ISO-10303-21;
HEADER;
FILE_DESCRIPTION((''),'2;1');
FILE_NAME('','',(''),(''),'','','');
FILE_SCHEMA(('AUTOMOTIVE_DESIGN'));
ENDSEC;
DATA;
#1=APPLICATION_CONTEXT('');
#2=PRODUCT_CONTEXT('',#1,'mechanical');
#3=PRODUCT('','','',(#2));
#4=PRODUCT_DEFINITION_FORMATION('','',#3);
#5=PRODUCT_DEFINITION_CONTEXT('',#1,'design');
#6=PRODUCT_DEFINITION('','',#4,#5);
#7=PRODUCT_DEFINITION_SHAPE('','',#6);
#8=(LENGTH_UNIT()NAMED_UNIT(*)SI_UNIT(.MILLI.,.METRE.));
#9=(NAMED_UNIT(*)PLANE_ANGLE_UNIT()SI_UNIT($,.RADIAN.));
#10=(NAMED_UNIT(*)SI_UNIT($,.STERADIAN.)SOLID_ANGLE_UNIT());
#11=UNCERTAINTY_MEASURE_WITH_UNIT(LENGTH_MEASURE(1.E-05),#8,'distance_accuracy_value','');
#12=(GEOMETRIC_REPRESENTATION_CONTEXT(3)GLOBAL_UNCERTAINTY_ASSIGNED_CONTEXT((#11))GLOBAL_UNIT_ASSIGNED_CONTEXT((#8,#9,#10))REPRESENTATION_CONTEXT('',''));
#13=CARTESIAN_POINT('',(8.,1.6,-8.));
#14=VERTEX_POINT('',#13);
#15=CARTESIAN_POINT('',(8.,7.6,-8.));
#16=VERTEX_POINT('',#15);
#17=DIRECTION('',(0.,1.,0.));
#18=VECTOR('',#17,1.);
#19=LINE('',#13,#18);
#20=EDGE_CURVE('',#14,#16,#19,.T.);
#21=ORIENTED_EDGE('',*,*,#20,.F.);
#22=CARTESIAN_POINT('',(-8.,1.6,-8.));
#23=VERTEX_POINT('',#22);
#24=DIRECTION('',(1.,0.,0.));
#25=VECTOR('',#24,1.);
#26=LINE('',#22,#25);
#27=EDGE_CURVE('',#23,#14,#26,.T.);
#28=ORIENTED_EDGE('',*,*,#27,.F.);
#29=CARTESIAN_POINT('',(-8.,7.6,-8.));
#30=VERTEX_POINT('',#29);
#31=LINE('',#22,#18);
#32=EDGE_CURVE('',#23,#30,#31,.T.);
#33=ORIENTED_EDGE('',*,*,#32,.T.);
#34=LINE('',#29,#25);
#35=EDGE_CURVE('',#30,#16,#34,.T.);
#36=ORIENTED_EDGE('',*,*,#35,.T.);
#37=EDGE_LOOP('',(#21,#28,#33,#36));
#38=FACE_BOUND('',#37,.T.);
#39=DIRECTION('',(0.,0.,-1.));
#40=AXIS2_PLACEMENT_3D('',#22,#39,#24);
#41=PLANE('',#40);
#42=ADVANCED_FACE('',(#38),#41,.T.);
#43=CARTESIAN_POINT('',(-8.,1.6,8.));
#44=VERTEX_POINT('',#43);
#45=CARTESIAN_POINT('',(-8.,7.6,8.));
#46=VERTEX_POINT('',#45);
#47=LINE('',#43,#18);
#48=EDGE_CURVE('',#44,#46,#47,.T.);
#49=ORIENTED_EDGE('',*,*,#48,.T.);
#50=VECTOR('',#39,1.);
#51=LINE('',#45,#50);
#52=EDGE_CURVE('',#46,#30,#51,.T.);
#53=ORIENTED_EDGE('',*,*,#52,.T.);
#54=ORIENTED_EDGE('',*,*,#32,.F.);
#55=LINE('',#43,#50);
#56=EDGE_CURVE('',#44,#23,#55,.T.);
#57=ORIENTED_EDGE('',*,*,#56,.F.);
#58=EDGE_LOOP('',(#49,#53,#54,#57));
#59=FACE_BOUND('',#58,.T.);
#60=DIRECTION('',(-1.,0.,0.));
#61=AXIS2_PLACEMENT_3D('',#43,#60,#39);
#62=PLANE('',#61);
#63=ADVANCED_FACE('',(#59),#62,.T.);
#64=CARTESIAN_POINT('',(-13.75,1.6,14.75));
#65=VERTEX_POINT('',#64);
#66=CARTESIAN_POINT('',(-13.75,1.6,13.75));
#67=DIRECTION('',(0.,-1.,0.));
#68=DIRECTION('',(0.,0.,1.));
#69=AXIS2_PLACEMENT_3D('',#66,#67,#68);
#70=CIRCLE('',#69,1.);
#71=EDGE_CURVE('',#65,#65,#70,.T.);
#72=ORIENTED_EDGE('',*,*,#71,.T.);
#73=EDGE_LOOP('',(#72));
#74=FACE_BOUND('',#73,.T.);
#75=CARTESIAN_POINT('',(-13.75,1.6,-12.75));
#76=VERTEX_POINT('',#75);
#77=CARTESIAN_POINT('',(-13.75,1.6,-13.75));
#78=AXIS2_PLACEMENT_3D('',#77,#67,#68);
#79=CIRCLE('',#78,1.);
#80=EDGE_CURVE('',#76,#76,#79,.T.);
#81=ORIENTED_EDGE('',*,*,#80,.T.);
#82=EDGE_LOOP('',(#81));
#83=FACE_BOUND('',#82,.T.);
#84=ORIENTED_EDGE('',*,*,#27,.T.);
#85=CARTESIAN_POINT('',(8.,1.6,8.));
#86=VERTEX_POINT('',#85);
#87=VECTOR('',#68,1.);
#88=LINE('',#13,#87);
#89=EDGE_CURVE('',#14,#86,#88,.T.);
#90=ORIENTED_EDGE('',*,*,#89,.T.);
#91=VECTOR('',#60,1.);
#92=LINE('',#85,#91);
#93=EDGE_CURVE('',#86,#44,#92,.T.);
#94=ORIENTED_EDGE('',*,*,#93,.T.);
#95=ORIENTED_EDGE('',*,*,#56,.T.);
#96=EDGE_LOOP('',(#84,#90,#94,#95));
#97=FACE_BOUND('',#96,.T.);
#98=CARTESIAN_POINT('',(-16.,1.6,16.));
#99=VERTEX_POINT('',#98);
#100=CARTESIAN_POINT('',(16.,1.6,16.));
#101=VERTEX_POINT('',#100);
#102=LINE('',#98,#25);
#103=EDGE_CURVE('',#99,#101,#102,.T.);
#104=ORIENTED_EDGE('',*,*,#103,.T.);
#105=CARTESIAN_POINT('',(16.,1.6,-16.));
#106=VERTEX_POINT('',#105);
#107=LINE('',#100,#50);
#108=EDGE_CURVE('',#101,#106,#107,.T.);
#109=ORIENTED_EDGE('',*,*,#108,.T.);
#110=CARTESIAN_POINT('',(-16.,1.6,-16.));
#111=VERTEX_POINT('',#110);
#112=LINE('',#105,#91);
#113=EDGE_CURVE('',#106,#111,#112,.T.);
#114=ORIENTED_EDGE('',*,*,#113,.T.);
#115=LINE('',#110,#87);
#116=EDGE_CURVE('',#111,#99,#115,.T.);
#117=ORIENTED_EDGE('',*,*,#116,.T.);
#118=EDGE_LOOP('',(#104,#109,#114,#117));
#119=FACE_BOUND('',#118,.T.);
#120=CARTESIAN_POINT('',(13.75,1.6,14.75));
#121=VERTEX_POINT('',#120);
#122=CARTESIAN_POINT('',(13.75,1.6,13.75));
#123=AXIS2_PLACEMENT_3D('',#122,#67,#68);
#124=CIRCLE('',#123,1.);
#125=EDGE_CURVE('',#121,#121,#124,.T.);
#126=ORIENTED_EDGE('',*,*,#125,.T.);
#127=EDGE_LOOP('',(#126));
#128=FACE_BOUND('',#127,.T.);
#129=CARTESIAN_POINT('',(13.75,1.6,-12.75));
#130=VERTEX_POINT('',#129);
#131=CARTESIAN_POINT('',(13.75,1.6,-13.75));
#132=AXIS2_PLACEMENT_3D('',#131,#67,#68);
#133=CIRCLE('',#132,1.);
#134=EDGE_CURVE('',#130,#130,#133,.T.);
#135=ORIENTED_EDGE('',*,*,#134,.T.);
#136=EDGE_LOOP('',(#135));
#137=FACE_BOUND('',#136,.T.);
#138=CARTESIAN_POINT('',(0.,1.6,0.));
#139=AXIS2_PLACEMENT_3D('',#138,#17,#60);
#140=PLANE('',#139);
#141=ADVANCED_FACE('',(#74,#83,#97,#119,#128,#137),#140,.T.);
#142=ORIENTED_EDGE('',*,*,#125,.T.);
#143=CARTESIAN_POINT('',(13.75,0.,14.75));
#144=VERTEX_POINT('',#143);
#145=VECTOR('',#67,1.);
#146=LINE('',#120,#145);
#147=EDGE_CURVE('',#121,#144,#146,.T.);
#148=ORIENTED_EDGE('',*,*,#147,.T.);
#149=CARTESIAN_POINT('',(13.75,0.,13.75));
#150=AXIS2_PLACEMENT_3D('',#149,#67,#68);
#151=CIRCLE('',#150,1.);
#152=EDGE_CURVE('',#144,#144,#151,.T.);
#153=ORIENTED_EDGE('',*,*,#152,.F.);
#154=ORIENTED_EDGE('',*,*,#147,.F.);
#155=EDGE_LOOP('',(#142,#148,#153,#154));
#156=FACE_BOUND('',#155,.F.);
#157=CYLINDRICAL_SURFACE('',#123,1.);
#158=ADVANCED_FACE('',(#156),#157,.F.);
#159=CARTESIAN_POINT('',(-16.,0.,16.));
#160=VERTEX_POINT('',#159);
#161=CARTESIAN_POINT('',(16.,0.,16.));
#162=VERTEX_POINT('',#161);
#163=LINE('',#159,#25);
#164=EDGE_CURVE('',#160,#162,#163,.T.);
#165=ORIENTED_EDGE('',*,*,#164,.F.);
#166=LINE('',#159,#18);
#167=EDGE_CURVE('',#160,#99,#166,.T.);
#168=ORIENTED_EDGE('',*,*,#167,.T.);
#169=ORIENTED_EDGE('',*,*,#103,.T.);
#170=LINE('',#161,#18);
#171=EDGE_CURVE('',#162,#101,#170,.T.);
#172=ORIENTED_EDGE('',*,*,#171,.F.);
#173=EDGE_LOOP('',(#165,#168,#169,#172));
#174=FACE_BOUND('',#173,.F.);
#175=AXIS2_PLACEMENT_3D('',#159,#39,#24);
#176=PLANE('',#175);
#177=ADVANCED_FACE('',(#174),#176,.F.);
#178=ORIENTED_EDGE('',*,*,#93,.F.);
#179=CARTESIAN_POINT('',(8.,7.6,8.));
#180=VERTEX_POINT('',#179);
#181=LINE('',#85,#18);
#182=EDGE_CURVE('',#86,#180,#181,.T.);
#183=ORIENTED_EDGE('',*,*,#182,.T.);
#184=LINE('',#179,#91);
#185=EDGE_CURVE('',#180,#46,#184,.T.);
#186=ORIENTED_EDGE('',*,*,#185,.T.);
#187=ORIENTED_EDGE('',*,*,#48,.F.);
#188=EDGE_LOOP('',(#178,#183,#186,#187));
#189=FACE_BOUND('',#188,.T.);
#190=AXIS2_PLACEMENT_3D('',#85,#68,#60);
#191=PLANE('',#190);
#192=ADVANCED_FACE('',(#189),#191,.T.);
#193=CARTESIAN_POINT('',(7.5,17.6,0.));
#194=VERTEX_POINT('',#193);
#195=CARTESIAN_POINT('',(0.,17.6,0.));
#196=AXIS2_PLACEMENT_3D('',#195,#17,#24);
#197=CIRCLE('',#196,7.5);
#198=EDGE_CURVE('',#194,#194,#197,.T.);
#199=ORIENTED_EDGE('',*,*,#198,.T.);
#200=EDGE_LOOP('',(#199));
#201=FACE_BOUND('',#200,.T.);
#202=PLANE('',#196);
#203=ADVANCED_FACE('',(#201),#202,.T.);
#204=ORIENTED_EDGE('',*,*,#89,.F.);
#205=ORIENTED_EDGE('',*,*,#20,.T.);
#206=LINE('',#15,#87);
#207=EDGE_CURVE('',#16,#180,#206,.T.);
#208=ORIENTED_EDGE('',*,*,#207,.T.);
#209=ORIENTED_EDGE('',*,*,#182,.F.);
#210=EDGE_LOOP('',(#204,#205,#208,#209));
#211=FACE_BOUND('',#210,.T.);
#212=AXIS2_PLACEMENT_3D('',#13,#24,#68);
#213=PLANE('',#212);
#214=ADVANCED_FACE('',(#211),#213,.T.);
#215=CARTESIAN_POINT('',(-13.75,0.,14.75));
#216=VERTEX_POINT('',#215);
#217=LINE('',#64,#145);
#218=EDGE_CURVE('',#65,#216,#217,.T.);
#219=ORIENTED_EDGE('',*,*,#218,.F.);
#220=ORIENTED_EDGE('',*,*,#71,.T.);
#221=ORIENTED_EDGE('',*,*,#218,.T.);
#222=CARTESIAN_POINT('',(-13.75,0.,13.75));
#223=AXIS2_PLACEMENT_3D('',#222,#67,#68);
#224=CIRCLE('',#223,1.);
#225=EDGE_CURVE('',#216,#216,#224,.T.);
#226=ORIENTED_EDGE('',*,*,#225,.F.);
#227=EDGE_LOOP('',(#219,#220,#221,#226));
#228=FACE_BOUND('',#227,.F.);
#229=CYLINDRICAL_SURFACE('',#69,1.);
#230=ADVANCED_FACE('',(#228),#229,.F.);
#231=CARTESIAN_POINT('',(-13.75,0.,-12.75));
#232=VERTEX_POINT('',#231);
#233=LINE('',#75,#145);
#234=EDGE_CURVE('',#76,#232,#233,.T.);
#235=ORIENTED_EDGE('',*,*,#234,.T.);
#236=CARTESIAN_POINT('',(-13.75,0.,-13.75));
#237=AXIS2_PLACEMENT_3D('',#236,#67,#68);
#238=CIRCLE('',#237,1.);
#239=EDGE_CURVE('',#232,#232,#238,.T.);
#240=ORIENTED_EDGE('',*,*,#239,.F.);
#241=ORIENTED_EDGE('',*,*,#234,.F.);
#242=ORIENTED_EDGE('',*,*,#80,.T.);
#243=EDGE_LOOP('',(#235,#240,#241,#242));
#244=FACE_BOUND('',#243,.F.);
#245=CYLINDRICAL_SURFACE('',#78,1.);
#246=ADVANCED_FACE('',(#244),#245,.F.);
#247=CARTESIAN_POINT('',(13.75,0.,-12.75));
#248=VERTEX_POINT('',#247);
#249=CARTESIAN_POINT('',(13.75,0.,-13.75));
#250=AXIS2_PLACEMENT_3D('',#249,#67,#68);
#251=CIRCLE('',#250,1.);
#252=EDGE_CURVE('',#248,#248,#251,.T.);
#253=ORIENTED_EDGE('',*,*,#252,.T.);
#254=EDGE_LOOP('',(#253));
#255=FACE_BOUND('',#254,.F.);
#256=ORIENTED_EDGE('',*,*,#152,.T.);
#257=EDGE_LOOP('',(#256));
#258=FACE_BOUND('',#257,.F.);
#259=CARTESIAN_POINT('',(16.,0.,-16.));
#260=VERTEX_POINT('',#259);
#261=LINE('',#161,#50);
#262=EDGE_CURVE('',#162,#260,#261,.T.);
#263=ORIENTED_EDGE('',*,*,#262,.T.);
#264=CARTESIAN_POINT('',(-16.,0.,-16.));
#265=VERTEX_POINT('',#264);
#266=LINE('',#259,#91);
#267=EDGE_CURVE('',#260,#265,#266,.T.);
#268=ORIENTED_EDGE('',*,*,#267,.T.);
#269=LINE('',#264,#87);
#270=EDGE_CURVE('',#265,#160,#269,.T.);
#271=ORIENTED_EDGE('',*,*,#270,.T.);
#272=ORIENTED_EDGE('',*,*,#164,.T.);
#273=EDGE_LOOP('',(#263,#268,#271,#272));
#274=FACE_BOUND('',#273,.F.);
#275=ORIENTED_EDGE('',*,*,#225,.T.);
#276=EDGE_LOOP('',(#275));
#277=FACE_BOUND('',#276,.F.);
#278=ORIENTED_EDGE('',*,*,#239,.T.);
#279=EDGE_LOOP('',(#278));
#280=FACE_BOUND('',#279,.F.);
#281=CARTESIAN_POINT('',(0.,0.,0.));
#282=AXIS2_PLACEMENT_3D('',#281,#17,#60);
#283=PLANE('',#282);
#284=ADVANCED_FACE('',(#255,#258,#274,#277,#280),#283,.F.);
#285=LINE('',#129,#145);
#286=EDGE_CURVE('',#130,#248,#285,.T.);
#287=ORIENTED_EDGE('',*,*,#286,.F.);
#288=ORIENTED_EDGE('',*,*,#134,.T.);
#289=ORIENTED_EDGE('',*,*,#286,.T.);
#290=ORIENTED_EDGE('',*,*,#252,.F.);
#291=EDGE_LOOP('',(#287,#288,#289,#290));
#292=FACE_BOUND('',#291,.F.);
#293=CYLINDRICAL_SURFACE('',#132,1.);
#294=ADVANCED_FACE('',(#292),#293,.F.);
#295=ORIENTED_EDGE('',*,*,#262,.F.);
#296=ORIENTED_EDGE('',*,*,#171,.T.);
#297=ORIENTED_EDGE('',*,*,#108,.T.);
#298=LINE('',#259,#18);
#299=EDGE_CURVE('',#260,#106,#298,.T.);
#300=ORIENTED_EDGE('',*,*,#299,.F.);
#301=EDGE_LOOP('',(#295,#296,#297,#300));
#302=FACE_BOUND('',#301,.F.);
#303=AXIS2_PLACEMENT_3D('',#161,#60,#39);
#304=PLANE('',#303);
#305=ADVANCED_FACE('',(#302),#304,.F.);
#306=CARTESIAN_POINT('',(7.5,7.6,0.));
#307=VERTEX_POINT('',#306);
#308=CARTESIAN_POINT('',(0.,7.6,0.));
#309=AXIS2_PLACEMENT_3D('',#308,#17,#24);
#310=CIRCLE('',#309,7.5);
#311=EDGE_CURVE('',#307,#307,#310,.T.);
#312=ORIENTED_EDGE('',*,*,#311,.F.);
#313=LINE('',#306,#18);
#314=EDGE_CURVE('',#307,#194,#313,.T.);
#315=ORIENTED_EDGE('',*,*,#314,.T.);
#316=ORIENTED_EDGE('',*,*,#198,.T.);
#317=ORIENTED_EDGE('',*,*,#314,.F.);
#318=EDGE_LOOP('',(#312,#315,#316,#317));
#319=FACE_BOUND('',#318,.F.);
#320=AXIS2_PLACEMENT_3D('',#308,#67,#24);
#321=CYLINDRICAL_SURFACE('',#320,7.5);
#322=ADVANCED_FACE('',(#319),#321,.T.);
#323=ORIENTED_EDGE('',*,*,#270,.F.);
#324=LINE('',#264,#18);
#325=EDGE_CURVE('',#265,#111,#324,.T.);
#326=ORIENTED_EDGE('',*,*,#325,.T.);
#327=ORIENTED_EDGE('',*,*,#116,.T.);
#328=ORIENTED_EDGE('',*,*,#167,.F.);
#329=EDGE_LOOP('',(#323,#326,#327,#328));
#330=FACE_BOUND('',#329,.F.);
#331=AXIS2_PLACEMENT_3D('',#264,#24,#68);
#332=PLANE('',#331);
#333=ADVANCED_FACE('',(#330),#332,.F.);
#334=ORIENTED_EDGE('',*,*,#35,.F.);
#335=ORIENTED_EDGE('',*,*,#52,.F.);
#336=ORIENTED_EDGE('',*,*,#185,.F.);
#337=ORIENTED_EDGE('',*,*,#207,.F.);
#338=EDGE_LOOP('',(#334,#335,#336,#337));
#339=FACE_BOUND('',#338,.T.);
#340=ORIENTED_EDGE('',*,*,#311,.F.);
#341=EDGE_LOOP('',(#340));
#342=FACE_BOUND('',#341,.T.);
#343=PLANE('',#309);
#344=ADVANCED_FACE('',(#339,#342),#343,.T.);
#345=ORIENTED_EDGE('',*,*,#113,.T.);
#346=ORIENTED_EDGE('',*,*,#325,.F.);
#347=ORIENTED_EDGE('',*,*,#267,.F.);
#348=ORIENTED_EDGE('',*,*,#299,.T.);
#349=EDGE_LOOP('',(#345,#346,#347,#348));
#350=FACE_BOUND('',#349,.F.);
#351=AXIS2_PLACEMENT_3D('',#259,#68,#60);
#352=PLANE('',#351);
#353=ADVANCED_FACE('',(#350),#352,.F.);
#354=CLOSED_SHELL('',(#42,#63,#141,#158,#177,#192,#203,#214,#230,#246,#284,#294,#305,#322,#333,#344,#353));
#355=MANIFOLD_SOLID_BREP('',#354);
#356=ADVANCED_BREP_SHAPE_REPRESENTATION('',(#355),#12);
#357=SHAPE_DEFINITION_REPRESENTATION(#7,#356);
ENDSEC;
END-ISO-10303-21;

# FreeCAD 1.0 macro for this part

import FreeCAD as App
import Part
import Sketcher

V = App.Vector
Q = App.Units.Quantity


def add_polygon(sketch, points):
    """Adds a closed chain of lines whose ends are joined by coincident constraints."""
    first, n = sketch.GeometryCount, len(points)
    for a, b in zip(points, points[1:] + points[:1]):
        sketch.addGeometry(Part.LineSegment(App.Vector(*a, 0), App.Vector(*b, 0)), False)
    for i in range(n):
        sketch.addConstraint(Sketcher.Constraint("Coincident", first + i, 2, first + (i + 1) % n, 1))

doc = App.newDocument("Part")
body = doc.addObject("PartDesign::Body", "Body")

# Sketch on XZ plane
sketch1 = doc.addObject("Sketcher::SketchObject", "Sketch")
body.addObject(sketch1)
sketch1.AttachmentSupport = (doc.XZ_Plane, [""])
sketch1.MapMode = "FlatFace"
add_polygon(sketch1, [(-16, 16), (16, 16), (16, -16), (-16, -16)])  # lines 0-3
sketch1.addConstraint([
    Sketcher.Constraint("Horizontal", 0),
    Sketcher.Constraint("Vertical", 1),
    Sketcher.Constraint("Horizontal", 2),
    Sketcher.Constraint("Vertical", 3),
    Sketcher.Constraint("Symmetric", 0, 2, 2, 2, -1, 1),
    Sketcher.Constraint("Equal", 2, 1),
    Sketcher.Constraint("DistanceX", 0, 1, 0, 2, Q("32 mm")),
])
pad1 = doc.addObject("PartDesign::Pad", "Pad")
body.addObject(pad1)
pad1.Profile = sketch1
pad1.Length = 1.6
pad1.Reversed = True

# Sketch on XZ plane
sketch2 = doc.addObject("Sketcher::SketchObject", "Sketch001")
body.addObject(sketch2)
sketch2.AttachmentSupport = (doc.XZ_Plane, [""])
sketch2.MapMode = "FlatFace"
sketch2.AttachmentOffset = App.Placement(V(0, 0, -1.6), App.Rotation())
add_polygon(sketch2, [(-8, -8), (-8, 8), (8, 8), (8, -8)])  # lines 0-3
sketch2.addConstraint([
    Sketcher.Constraint("Vertical", 0),
    Sketcher.Constraint("Horizontal", 1),
    Sketcher.Constraint("Vertical", 2),
    Sketcher.Constraint("Horizontal", 3),
    Sketcher.Constraint("Symmetric", 0, 2, 2, 2, -1, 1),
    Sketcher.Constraint("Equal", 3, 0),
    Sketcher.Constraint("DistanceX", 1, 1, 1, 2, Q("16 mm")),
])
pad2 = doc.addObject("PartDesign::Pad", "Pad001")
body.addObject(pad2)
pad2.Profile = sketch2
pad2.Length = 6
pad2.Reversed = True

# Sketch on XZ plane
sketch3 = doc.addObject("Sketcher::SketchObject", "Sketch002")
body.addObject(sketch3)
sketch3.AttachmentSupport = (doc.XZ_Plane, [""])
sketch3.MapMode = "FlatFace"
sketch3.AttachmentOffset = App.Placement(V(0, 0, -7.6), App.Rotation())
sketch3.addGeometry(Part.Circle(V(0, 0, 0), V(0, 0, 1), 8), False)
sketch3.addConstraint([
    Sketcher.Constraint("Coincident", 0, 3, -1, 1),
    Sketcher.Constraint("Diameter", 0, Q("15 mm")),
])
pad3 = doc.addObject("PartDesign::Pad", "Pad002")
body.addObject(pad3)
pad3.Profile = sketch3
pad3.Length = 10
pad3.Reversed = True

# Sketch on XZ plane
sketch4 = doc.addObject("Sketcher::SketchObject", "Sketch003")
body.addObject(sketch4)
sketch4.AttachmentSupport = (doc.XZ_Plane, [""])
sketch4.MapMode = "FlatFace"
sketch4.AttachmentOffset = App.Placement(V(0, 0, -1.6), App.Rotation())
sketch4.addGeometry([
    Part.Circle(V(-13.8, 13.8, 0), V(0, 0, 1), 1),
    Part.Circle(V(13.8, 13.8, 0), V(0, 0, 1), 1),
    Part.Circle(V(13.8, -13.8, 0), V(0, 0, 1), 1),
    Part.Circle(V(-13.8, -13.8, 0), V(0, 0, 1), 1),
], False)
sketch4.addConstraint([
    Sketcher.Constraint("Equal", 0, 1),
    Sketcher.Constraint("Equal", 1, 2),
    Sketcher.Constraint("Equal", 2, 3),
    Sketcher.Constraint("Symmetric", 0, 3, 2, 3, -1, 1),
    Sketcher.Constraint("Symmetric", 1, 3, 3, 3, -1, 1),
    Sketcher.Constraint("Symmetric", 0, 3, 1, 3, -2),
    Sketcher.Constraint("Diameter", 0, Q("2 mm")),
    Sketcher.Constraint("DistanceX", 0, 3, 1, 3, Q("27.5 mm")),
    Sketcher.Constraint("DistanceY", 2, 3, 1, 3, Q("27.5 mm")),
])
doc.recompute()
hole = doc.addObject("PartDesign::Hole", "Hole")
body.addObject(hole)
hole.Profile = sketch4
hole.ThreadType = "None"
hole.Diameter = 2
hole.DepthType = "Dimension"
hole.Depth = 7
hole.DrillPoint = "Flat"
hole.Reversed = True

doc.recompute()
